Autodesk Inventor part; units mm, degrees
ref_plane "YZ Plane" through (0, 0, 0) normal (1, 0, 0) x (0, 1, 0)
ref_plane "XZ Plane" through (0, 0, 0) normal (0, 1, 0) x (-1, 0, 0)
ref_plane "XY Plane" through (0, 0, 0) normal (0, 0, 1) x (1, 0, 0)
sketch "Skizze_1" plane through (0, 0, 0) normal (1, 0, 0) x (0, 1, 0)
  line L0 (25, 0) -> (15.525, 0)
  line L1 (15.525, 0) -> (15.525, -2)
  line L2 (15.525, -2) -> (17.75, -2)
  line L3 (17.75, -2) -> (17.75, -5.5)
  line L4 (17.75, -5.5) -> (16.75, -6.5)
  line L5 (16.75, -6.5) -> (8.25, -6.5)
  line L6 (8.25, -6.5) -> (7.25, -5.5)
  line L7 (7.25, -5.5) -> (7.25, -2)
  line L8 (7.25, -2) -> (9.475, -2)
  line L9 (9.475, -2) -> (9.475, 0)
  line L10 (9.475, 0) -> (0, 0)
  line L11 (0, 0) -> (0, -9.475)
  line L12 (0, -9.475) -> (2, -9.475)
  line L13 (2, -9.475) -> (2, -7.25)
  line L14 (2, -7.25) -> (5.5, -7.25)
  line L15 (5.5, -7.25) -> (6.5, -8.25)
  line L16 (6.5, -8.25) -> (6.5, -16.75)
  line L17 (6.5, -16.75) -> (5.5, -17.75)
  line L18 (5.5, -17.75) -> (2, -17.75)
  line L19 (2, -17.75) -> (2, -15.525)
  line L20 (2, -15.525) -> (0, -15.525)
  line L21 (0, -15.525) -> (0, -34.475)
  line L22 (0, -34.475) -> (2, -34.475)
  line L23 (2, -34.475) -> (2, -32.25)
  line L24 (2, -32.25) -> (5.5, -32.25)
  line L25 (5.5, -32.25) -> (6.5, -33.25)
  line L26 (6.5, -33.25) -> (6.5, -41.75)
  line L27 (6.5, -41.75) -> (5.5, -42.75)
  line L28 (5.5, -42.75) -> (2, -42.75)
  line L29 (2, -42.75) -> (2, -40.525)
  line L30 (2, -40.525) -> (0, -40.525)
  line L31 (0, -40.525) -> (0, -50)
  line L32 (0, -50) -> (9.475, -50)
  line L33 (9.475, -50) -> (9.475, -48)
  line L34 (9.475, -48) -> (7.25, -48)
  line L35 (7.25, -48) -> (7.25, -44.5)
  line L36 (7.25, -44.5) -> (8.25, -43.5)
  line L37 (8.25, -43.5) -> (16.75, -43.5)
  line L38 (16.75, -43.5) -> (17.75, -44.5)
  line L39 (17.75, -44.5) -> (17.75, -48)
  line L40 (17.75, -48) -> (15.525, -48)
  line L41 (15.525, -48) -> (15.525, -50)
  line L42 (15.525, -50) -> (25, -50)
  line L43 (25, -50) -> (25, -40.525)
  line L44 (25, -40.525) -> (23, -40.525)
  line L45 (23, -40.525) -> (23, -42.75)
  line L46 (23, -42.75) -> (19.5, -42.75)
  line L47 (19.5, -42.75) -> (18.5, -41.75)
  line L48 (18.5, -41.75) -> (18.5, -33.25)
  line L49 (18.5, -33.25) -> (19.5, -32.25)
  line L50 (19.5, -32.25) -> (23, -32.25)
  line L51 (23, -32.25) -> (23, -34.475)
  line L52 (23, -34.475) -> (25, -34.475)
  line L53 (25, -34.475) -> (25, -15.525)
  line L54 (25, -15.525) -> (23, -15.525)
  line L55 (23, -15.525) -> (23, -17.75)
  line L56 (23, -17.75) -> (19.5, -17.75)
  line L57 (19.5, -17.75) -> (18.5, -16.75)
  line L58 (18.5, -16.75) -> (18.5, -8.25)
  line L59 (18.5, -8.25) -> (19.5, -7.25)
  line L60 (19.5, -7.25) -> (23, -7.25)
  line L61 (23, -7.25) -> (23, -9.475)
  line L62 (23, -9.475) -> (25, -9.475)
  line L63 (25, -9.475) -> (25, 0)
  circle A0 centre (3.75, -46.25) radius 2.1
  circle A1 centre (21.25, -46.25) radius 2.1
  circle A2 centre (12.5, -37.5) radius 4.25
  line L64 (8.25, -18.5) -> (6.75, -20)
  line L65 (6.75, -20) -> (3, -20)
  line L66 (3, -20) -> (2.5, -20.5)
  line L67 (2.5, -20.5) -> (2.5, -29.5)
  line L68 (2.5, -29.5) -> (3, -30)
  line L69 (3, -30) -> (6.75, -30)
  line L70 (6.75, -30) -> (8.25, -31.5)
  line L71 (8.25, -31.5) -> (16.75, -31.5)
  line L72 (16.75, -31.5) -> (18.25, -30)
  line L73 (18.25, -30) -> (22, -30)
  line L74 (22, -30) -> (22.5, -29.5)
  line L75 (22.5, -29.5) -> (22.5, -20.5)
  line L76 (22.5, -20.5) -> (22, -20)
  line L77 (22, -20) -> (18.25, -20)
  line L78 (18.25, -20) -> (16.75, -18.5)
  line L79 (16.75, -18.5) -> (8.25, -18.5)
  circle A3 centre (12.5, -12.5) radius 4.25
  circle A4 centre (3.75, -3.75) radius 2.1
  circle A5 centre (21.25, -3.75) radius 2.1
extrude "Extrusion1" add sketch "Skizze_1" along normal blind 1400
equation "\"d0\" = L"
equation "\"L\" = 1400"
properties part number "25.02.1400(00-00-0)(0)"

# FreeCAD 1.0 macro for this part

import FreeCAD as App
import Part
import Sketcher


def add_polygon(sketch, points):
    """Adds a closed chain of lines whose ends are joined by coincident constraints."""
    first, n = sketch.GeometryCount, len(points)
    for a, b in zip(points, points[1:] + points[:1]):
        sketch.addGeometry(Part.LineSegment(App.Vector(*a, 0), App.Vector(*b, 0)), False)
    for i in range(n):
        sketch.addConstraint(Sketcher.Constraint("Coincident", first + i, 2, first + (i + 1) % n, 1))

doc = App.newDocument("Part")
params = doc.addObject("Spreadsheet::Sheet", "Params")
for row, (alias, value) in enumerate([
    ("sketch1_diameter", "4.2 mm"),
    ("sketch1_diameter2", "8.5 mm"),
    ("sketch1_width", "2 mm"),
    ("sketch1_height", "9 mm"),
    ("sketch1_width2", "8.5 mm"),
    ("pad1_length", "1400 mm"),
], start=1):
    params.set(f"A{row}", alias)
    params.set(f"B{row}", "=" + value)
    params.setAlias(f"B{row}", alias)

body = doc.addObject("PartDesign::Body", "Body")

sketch1 = body.newObject("Sketcher::SketchObject", "Sketch")
sketch1.AttachmentSupport = (doc.getObject("YZ_Plane"), [""])
sketch1.MapMode = "FlatFace"
add_polygon(sketch1, [(25, -9.5), (25, 0), (15.5, 0), (15.5, -2), (17.8, -2), (17.8, -5.5), (16.8, -6.5), (8.2, -6.5), (7.2, -5.5), (7.2, -2), (9.5, -2), (9.5, 0), (0, 0), (0, -9.5), (2, -9.5), (2, -7.2), (5.5, -7.2), (6.5, -8.2), (6.5, -16.8), (5.5, -17.8), (2, -17.8), (2, -15.5), (0, -15.5), (0, -34.5), (2, -34.5), (2, -32.2), (5.5, -32.2), (6.5, -33.2), (6.5, -41.8), (5.5, -42.8), (2, -42.8), (2, -40.5), (0, -40.5), (0, -50), (9.5, -50), (9.5, -48), (7.2, -48), (7.2, -44.5), (8.2, -43.5), (16.8, -43.5), (17.8, -44.5), (17.8, -48), (15.5, -48), (15.5, -50), (25, -50), (25, -40.5), (23, -40.5), (23, -42.8), (19.5, -42.8), (18.5, -41.8), (18.5, -33.2), (19.5, -32.2), (23, -32.2), (23, -34.5), (25, -34.5), (25, -15.5), (23, -15.5), (23, -17.8), (19.5, -17.8), (18.5, -16.8), (18.5, -8.2), (19.5, -7.2), (23, -7.2), (23, -9.5)])
sketch1.addGeometry(Part.Circle(App.Vector(3.8, -46.2, 0), App.Vector(0, 0, 1), 2.1), False)
sketch1.addGeometry(Part.Circle(App.Vector(21.2, -46.2, 0), App.Vector(0, 0, 1), 2.1), False)
sketch1.addGeometry(Part.Circle(App.Vector(12.5, -37.5, 0), App.Vector(0, 0, 1), 4.2), False)
sketch1.addGeometry(Part.Circle(App.Vector(3.8, -3.8, 0), App.Vector(0, 0, 1), 2.1), False)
add_polygon(sketch1, [(6.8, -20), (8.2, -18.5), (16.8, -18.5), (18.2, -20), (22, -20), (22.5, -20.5), (22.5, -29.5), (22, -30), (18.2, -30), (16.8, -31.5), (8.2, -31.5), (6.8, -30), (3, -30), (2.5, -29.5), (2.5, -20.5), (3, -20)])
sketch1.addGeometry(Part.Circle(App.Vector(12.5, -12.5, 0), App.Vector(0, 0, 1), 4.2), False)
sketch1.addGeometry(Part.Circle(App.Vector(21.2, -3.8, 0), App.Vector(0, 0, 1), 2.1), False)
sketch1.addConstraint(Sketcher.Constraint("Vertical", 0))
sketch1.addConstraint(Sketcher.Constraint("Horizontal", 1))
sketch1.addConstraint(Sketcher.Constraint("Vertical", 2))
sketch1.addConstraint(Sketcher.Constraint("Horizontal", 3))
sketch1.addConstraint(Sketcher.Constraint("Vertical", 4))
sketch1.addConstraint(Sketcher.Constraint("Horizontal", 6))
sketch1.addConstraint(Sketcher.Constraint("Vertical", 8))
sketch1.addConstraint(Sketcher.Constraint("Horizontal", 9))
sketch1.addConstraint(Sketcher.Constraint("Vertical", 10))
sketch1.addConstraint(Sketcher.Constraint("Horizontal", 11))
sketch1.addConstraint(Sketcher.Constraint("Vertical", 12))
sketch1.addConstraint(Sketcher.Constraint("Horizontal", 13))
sketch1.addConstraint(Sketcher.Constraint("Vertical", 14))
sketch1.addConstraint(Sketcher.Constraint("Horizontal", 15))
sketch1.addConstraint(Sketcher.Constraint("Vertical", 17))
sketch1.addConstraint(Sketcher.Constraint("Horizontal", 19))
sketch1.addConstraint(Sketcher.Constraint("Vertical", 20))
sketch1.addConstraint(Sketcher.Constraint("Horizontal", 21))
sketch1.addConstraint(Sketcher.Constraint("Vertical", 22))
sketch1.addConstraint(Sketcher.Constraint("Horizontal", 23))
sketch1.addConstraint(Sketcher.Constraint("Vertical", 24))
sketch1.addConstraint(Sketcher.Constraint("Horizontal", 25))
sketch1.addConstraint(Sketcher.Constraint("Vertical", 27))
sketch1.addConstraint(Sketcher.Constraint("Horizontal", 29))
sketch1.addConstraint(Sketcher.Constraint("Vertical", 30))
sketch1.addConstraint(Sketcher.Constraint("Horizontal", 31))
sketch1.addConstraint(Sketcher.Constraint("Vertical", 32))
sketch1.addConstraint(Sketcher.Constraint("Horizontal", 33))
sketch1.addConstraint(Sketcher.Constraint("Vertical", 34))
sketch1.addConstraint(Sketcher.Constraint("Horizontal", 35))
sketch1.addConstraint(Sketcher.Constraint("Vertical", 36))
sketch1.addConstraint(Sketcher.Constraint("Horizontal", 38))
sketch1.addConstraint(Sketcher.Constraint("Vertical", 40))
sketch1.addConstraint(Sketcher.Constraint("Horizontal", 41))
sketch1.addConstraint(Sketcher.Constraint("Vertical", 42))
sketch1.addConstraint(Sketcher.Constraint("Horizontal", 43))
sketch1.addConstraint(Sketcher.Constraint("Vertical", 44))
sketch1.addConstraint(Sketcher.Constraint("Horizontal", 45))
sketch1.addConstraint(Sketcher.Constraint("Vertical", 46))
sketch1.addConstraint(Sketcher.Constraint("Horizontal", 47))
sketch1.addConstraint(Sketcher.Constraint("Vertical", 49))
sketch1.addConstraint(Sketcher.Constraint("Horizontal", 51))
sketch1.addConstraint(Sketcher.Constraint("Vertical", 52))
sketch1.addConstraint(Sketcher.Constraint("Horizontal", 53))
sketch1.addConstraint(Sketcher.Constraint("Vertical", 54))
sketch1.addConstraint(Sketcher.Constraint("Horizontal", 55))
sketch1.addConstraint(Sketcher.Constraint("Vertical", 56))
sketch1.addConstraint(Sketcher.Constraint("Horizontal", 57))
sketch1.addConstraint(Sketcher.Constraint("Vertical", 59))
sketch1.addConstraint(Sketcher.Constraint("Horizontal", 61))
sketch1.addConstraint(Sketcher.Constraint("Vertical", 62))
sketch1.addConstraint(Sketcher.Constraint("Horizontal", 63))
sketch1.addConstraint(Sketcher.Constraint("Horizontal", 69))
sketch1.addConstraint(Sketcher.Constraint("Horizontal", 71))
sketch1.addConstraint(Sketcher.Constraint("Vertical", 73))
sketch1.addConstraint(Sketcher.Constraint("Horizontal", 75))
sketch1.addConstraint(Sketcher.Constraint("Horizontal", 77))
sketch1.addConstraint(Sketcher.Constraint("Horizontal", 79))
sketch1.addConstraint(Sketcher.Constraint("Vertical", 81))
sketch1.addConstraint(Sketcher.Constraint("Horizontal", 83))
sketch1.addConstraint(Sketcher.Constraint("Coincident", 11, 2, -1, 1))
sketch1.addConstraint(Sketcher.Constraint("Equal", 64, 65))
sketch1.addConstraint(Sketcher.Constraint("Equal", 65, 67))
sketch1.addConstraint(Sketcher.Constraint("Equal", 66, 84))
sketch1.addConstraint(Sketcher.Constraint("Equal", 67, 85))
sketch1.addConstraint(Sketcher.Constraint("PointOnObject", 0, 2, -1))
sketch1.addConstraint(Sketcher.Constraint("PointOnObject", 21, 2, -2))
sketch1.addConstraint(Sketcher.Constraint("PointOnObject", 31, 2, -2))
sketch1.addConstraint(Sketcher.Constraint("Perpendicular", 5, 7))
sketch1.addConstraint(Sketcher.Constraint("Parallel", 7, 16))
sketch1.addConstraint(Sketcher.Constraint("Perpendicular", 16, 18))
sketch1.addConstraint(Sketcher.Constraint("Perpendicular", 18, 26))
sketch1.addConstraint(Sketcher.Constraint("Perpendicular", 26, 28))
sketch1.addConstraint(Sketcher.Constraint("Parallel", 28, 37))
sketch1.addConstraint(Sketcher.Constraint("Perpendicular", 37, 39))
sketch1.addConstraint(Sketcher.Constraint("Parallel", 39, 48))
sketch1.addConstraint(Sketcher.Constraint("Perpendicular", 48, 50))
sketch1.addConstraint(Sketcher.Constraint("Perpendicular", 50, 58))
sketch1.addConstraint(Sketcher.Constraint("Perpendicular", 58, 60))
sketch1.addConstraint(Sketcher.Constraint("Parallel", 60, 68))
sketch1.addConstraint(Sketcher.Constraint("Perpendicular", 68, 70))
sketch1.addConstraint(Sketcher.Constraint("Parallel", 70, 72))
sketch1.addConstraint(Sketcher.Constraint("Perpendicular", 72, 74))
sketch1.addConstraint(Sketcher.Constraint("Parallel", 74, 76))
sketch1.addConstraint(Sketcher.Constraint("Perpendicular", 76, 78))
sketch1.addConstraint(Sketcher.Constraint("Parallel", 78, 80))
sketch1.addConstraint(Sketcher.Constraint("Perpendicular", 80, 82))
sketch1.addConstraint(Sketcher.Constraint("Horizontal", 64, 3, 65, 3))
sketch1.addConstraint(Sketcher.Constraint("Horizontal", 67, 3, 85, 3))
sketch1.addConstraint(Sketcher.Constraint("Horizontal", 4, 2, 7, 2))
sketch1.addConstraint(Sketcher.Constraint("Horizontal", 3, 2, 8, 2))
sketch1.addConstraint(Sketcher.Constraint("Horizontal", 36, 2, 39, 2))
sketch1.addConstraint(Sketcher.Constraint("Horizontal", 35, 2, 40, 2))
sketch1.addConstraint(Sketcher.Constraint("Horizontal", 33, 2, 42, 2))
sketch1.addConstraint(Sketcher.Constraint("Horizontal", 31, 2, 44, 2))
sketch1.addConstraint(Sketcher.Constraint("Horizontal", 29, 2, 46, 2))
sketch1.addConstraint(Sketcher.Constraint("Horizontal", 27, 2, 48, 2))
sketch1.addConstraint(Sketcher.Constraint("Horizontal", 26, 2, 49, 2))
sketch1.addConstraint(Sketcher.Constraint("Horizontal", 25, 2, 50, 2))
sketch1.addConstraint(Sketcher.Constraint("Horizontal", 23, 2, 52, 2))
sketch1.addConstraint(Sketcher.Constraint("Horizontal", 21, 2, 54, 2))
sketch1.addConstraint(Sketcher.Constraint("Horizontal", 19, 2, 56, 2))
sketch1.addConstraint(Sketcher.Constraint("Horizontal", 17, 2, 58, 2))
sketch1.addConstraint(Sketcher.Constraint("Horizontal", 16, 2, 59, 2))
sketch1.addConstraint(Sketcher.Constraint("Horizontal", 15, 2, 60, 2))
sketch1.addConstraint(Sketcher.Constraint("Horizontal", 13, 2, 62, 2))
sketch1.addConstraint(Sketcher.Constraint("Horizontal", 75, 2, 78, 2))
sketch1.addConstraint(Sketcher.Constraint("Horizontal", 73, 2, 80, 2))
sketch1.addConstraint(Sketcher.Constraint("Horizontal", 72, 2, 81, 2))
sketch1.addConstraint(Sketcher.Constraint("Horizontal", 71, 2, 82, 2))
sketch1.addConstraint(Sketcher.Constraint("Vertical", 64, 3, 67, 3))
sketch1.addConstraint(Sketcher.Constraint("Vertical", 66, 3, 84, 3))
sketch1.addConstraint(Sketcher.Constraint("Vertical", 65, 3, 85, 3))
sketch1.addConstraint(Sketcher.Constraint("Vertical", 15, 2, 18, 2))
sketch1.addConstraint(Sketcher.Constraint("Vertical", 14, 2, 19, 2))
sketch1.addConstraint(Sketcher.Constraint("Vertical", 20, 2, 23, 2))
sketch1.addConstraint(Sketcher.Constraint("Vertical", 18, 2, 25, 2))
sketch1.addConstraint(Sketcher.Constraint("Vertical", 17, 2, 26, 2))
sketch1.addConstraint(Sketcher.Constraint("Vertical", 25, 2, 28, 2))
sketch1.addConstraint(Sketcher.Constraint("Vertical", 24, 2, 29, 2))
sketch1.addConstraint(Sketcher.Constraint("Vertical", 10, 2, 33, 2))
sketch1.addConstraint(Sketcher.Constraint("Vertical", 8, 2, 35, 2))
sketch1.addConstraint(Sketcher.Constraint("Vertical", 6, 2, 37, 2))
sketch1.addConstraint(Sketcher.Constraint("Vertical", 5, 2, 38, 2))
sketch1.addConstraint(Sketcher.Constraint("Vertical", 4, 2, 39, 2))
sketch1.addConstraint(Sketcher.Constraint("Vertical", 2, 2, 41, 2))
sketch1.addConstraint(Sketcher.Constraint("Vertical", 0, 2, 43, 2))
sketch1.addConstraint(Sketcher.Constraint("Vertical", 46, 2, 51, 2))
sketch1.addConstraint(Sketcher.Constraint("Vertical", 44, 2, 53, 2))
sketch1.addConstraint(Sketcher.Constraint("Vertical", 52, 2, 55, 2))
sketch1.addConstraint(Sketcher.Constraint("Vertical", 50, 2, 57, 2))
sketch1.addConstraint(Sketcher.Constraint("Vertical", 56, 2, 61, 2))
sketch1.addConstraint(Sketcher.Constraint("Vertical", 37, 2, 68, 2))
sketch1.addConstraint(Sketcher.Constraint("Vertical", 38, 2, 69, 2))
sketch1.addConstraint(Sketcher.Constraint("Vertical", 71, 2, 74, 2))
sketch1.addConstraint(Sketcher.Constraint("Vertical", 70, 2, 75, 2))
sketch1.addConstraint(Sketcher.Constraint("Vertical", 69, 2, 76, 2))
sketch1.addConstraint(Sketcher.Constraint("Vertical", 68, 2, 77, 2))
sketch1.addConstraint(Sketcher.Constraint("Equal", 3, 9))
sketch1.addConstraint(Sketcher.Constraint("Equal", 1, 11))
sketch1.addConstraint(Sketcher.Constraint("Equal", 31, 45))
sketch1.addConstraint(Sketcher.Constraint("Equal", 29, 47))
sketch1.addConstraint(Sketcher.Constraint("Equal", 75, 79))
sketch1.addConstraint(Sketcher.Constraint("Equal", 43, 0))
sketch1.addConstraint(Sketcher.Constraint("Equal", 63, 2))
sketch1.addConstraint(Sketcher.Constraint("Equal", 61, 4))
sketch1.addConstraint(Sketcher.Constraint("Equal", 41, 14))
sketch1.addConstraint(Sketcher.Constraint("Equal", 77, 17))
sketch1.addConstraint(Sketcher.Constraint("Equal", 14, 20))
sketch1.addConstraint(Sketcher.Constraint("Equal", 20, 24))
sketch1.addConstraint(Sketcher.Constraint("Equal", 17, 27))
sketch1.addConstraint(Sketcher.Constraint("Equal", 24, 30))
sketch1.addConstraint(Sketcher.Constraint("Equal", 12, 32))
sketch1.addConstraint(Sketcher.Constraint("Equal", 10, 34))
sketch1.addConstraint(Sketcher.Constraint("Equal", 8, 36))
sketch1.addConstraint(Sketcher.Constraint("Equal", 7, 16))
sketch1.addConstraint(Sketcher.Constraint("Diameter", 64, 4.2))
sketch1.addConstraint(Sketcher.Constraint("Diameter", 66, 8.5))
sketch1.addConstraint(Sketcher.Constraint("DistanceX", 13, 1, 13, 2, 2.0))
sketch1.addConstraint(Sketcher.Constraint("DistanceY", 73, 2, 73, 1, 9.0))
sketch1.addConstraint(Sketcher.Constraint("DistanceX", 6, 2, 6, 1, 8.5))
sketch1.addConstraint(Sketcher.Constraint("DistanceX", 15, 1, 15, 2, 3.5))
sketch1.addConstraint(Sketcher.Constraint("DistanceX", -1, 1, 0, 2, 25.0))
sketch1.addConstraint(Sketcher.Constraint("DistanceY", 32, 2, -1, 1, 50.0))
sketch1.addConstraint(Sketcher.Constraint("DistanceY", 70, 2, -1, 1, 20.0))
sketch1.addConstraint(Sketcher.Constraint("DistanceX", -1, 1, 71, 2, 22.0))
sketch1.addConstraint(Sketcher.Constraint("DistanceY", 74, 2, -1, 1, 30.0))
sketch1.addConstraint(Sketcher.Constraint("DistanceX", 71, 1, 71, 2, 3.75))
sketch1.addConstraint(Sketcher.Constraint("DistanceY", 22, 2, 22, 1, 18.95))
sketch1.addConstraint(Sketcher.Constraint("DistanceX", -1, 1, 66, 3, 12.5))
sketch1.addConstraint(Sketcher.Constraint("DistanceY", 66, 3, -1, 1, 37.5))
sketch1.addConstraint(Sketcher.Constraint("DistanceY", 84, 3, -1, 1, 12.5))
sketch1.addConstraint(Sketcher.Constraint("DistanceY", 5, 2, -1, 1, 6.5))
sketch1.addConstraint(Sketcher.Constraint("DistanceX", -1, 1, 64, 3, 3.75))
sketch1.addConstraint(Sketcher.Constraint("DistanceY", 64, 3, -1, 1, 46.25))
sketch1.addConstraint(Sketcher.Constraint("DistanceX", -1, 1, 65, 3, 21.25))
sketch1.addConstraint(Sketcher.Constraint("DistanceY", 67, 3, -1, 1, 3.75))
sketch1.setExpression("Constraints[236]", "Params.sketch1_diameter")
sketch1.setExpression("Constraints[237]", "Params.sketch1_diameter2")
sketch1.setExpression("Constraints[238]", "Params.sketch1_width")
sketch1.setExpression("Constraints[239]", "Params.sketch1_height")
sketch1.setExpression("Constraints[240]", "Params.sketch1_width2")
pad1 = body.newObject("PartDesign::Pad", "Pad")
pad1.Profile = sketch1
pad1.setExpression("Length", "Params.pad1_length")

doc.recompute()
